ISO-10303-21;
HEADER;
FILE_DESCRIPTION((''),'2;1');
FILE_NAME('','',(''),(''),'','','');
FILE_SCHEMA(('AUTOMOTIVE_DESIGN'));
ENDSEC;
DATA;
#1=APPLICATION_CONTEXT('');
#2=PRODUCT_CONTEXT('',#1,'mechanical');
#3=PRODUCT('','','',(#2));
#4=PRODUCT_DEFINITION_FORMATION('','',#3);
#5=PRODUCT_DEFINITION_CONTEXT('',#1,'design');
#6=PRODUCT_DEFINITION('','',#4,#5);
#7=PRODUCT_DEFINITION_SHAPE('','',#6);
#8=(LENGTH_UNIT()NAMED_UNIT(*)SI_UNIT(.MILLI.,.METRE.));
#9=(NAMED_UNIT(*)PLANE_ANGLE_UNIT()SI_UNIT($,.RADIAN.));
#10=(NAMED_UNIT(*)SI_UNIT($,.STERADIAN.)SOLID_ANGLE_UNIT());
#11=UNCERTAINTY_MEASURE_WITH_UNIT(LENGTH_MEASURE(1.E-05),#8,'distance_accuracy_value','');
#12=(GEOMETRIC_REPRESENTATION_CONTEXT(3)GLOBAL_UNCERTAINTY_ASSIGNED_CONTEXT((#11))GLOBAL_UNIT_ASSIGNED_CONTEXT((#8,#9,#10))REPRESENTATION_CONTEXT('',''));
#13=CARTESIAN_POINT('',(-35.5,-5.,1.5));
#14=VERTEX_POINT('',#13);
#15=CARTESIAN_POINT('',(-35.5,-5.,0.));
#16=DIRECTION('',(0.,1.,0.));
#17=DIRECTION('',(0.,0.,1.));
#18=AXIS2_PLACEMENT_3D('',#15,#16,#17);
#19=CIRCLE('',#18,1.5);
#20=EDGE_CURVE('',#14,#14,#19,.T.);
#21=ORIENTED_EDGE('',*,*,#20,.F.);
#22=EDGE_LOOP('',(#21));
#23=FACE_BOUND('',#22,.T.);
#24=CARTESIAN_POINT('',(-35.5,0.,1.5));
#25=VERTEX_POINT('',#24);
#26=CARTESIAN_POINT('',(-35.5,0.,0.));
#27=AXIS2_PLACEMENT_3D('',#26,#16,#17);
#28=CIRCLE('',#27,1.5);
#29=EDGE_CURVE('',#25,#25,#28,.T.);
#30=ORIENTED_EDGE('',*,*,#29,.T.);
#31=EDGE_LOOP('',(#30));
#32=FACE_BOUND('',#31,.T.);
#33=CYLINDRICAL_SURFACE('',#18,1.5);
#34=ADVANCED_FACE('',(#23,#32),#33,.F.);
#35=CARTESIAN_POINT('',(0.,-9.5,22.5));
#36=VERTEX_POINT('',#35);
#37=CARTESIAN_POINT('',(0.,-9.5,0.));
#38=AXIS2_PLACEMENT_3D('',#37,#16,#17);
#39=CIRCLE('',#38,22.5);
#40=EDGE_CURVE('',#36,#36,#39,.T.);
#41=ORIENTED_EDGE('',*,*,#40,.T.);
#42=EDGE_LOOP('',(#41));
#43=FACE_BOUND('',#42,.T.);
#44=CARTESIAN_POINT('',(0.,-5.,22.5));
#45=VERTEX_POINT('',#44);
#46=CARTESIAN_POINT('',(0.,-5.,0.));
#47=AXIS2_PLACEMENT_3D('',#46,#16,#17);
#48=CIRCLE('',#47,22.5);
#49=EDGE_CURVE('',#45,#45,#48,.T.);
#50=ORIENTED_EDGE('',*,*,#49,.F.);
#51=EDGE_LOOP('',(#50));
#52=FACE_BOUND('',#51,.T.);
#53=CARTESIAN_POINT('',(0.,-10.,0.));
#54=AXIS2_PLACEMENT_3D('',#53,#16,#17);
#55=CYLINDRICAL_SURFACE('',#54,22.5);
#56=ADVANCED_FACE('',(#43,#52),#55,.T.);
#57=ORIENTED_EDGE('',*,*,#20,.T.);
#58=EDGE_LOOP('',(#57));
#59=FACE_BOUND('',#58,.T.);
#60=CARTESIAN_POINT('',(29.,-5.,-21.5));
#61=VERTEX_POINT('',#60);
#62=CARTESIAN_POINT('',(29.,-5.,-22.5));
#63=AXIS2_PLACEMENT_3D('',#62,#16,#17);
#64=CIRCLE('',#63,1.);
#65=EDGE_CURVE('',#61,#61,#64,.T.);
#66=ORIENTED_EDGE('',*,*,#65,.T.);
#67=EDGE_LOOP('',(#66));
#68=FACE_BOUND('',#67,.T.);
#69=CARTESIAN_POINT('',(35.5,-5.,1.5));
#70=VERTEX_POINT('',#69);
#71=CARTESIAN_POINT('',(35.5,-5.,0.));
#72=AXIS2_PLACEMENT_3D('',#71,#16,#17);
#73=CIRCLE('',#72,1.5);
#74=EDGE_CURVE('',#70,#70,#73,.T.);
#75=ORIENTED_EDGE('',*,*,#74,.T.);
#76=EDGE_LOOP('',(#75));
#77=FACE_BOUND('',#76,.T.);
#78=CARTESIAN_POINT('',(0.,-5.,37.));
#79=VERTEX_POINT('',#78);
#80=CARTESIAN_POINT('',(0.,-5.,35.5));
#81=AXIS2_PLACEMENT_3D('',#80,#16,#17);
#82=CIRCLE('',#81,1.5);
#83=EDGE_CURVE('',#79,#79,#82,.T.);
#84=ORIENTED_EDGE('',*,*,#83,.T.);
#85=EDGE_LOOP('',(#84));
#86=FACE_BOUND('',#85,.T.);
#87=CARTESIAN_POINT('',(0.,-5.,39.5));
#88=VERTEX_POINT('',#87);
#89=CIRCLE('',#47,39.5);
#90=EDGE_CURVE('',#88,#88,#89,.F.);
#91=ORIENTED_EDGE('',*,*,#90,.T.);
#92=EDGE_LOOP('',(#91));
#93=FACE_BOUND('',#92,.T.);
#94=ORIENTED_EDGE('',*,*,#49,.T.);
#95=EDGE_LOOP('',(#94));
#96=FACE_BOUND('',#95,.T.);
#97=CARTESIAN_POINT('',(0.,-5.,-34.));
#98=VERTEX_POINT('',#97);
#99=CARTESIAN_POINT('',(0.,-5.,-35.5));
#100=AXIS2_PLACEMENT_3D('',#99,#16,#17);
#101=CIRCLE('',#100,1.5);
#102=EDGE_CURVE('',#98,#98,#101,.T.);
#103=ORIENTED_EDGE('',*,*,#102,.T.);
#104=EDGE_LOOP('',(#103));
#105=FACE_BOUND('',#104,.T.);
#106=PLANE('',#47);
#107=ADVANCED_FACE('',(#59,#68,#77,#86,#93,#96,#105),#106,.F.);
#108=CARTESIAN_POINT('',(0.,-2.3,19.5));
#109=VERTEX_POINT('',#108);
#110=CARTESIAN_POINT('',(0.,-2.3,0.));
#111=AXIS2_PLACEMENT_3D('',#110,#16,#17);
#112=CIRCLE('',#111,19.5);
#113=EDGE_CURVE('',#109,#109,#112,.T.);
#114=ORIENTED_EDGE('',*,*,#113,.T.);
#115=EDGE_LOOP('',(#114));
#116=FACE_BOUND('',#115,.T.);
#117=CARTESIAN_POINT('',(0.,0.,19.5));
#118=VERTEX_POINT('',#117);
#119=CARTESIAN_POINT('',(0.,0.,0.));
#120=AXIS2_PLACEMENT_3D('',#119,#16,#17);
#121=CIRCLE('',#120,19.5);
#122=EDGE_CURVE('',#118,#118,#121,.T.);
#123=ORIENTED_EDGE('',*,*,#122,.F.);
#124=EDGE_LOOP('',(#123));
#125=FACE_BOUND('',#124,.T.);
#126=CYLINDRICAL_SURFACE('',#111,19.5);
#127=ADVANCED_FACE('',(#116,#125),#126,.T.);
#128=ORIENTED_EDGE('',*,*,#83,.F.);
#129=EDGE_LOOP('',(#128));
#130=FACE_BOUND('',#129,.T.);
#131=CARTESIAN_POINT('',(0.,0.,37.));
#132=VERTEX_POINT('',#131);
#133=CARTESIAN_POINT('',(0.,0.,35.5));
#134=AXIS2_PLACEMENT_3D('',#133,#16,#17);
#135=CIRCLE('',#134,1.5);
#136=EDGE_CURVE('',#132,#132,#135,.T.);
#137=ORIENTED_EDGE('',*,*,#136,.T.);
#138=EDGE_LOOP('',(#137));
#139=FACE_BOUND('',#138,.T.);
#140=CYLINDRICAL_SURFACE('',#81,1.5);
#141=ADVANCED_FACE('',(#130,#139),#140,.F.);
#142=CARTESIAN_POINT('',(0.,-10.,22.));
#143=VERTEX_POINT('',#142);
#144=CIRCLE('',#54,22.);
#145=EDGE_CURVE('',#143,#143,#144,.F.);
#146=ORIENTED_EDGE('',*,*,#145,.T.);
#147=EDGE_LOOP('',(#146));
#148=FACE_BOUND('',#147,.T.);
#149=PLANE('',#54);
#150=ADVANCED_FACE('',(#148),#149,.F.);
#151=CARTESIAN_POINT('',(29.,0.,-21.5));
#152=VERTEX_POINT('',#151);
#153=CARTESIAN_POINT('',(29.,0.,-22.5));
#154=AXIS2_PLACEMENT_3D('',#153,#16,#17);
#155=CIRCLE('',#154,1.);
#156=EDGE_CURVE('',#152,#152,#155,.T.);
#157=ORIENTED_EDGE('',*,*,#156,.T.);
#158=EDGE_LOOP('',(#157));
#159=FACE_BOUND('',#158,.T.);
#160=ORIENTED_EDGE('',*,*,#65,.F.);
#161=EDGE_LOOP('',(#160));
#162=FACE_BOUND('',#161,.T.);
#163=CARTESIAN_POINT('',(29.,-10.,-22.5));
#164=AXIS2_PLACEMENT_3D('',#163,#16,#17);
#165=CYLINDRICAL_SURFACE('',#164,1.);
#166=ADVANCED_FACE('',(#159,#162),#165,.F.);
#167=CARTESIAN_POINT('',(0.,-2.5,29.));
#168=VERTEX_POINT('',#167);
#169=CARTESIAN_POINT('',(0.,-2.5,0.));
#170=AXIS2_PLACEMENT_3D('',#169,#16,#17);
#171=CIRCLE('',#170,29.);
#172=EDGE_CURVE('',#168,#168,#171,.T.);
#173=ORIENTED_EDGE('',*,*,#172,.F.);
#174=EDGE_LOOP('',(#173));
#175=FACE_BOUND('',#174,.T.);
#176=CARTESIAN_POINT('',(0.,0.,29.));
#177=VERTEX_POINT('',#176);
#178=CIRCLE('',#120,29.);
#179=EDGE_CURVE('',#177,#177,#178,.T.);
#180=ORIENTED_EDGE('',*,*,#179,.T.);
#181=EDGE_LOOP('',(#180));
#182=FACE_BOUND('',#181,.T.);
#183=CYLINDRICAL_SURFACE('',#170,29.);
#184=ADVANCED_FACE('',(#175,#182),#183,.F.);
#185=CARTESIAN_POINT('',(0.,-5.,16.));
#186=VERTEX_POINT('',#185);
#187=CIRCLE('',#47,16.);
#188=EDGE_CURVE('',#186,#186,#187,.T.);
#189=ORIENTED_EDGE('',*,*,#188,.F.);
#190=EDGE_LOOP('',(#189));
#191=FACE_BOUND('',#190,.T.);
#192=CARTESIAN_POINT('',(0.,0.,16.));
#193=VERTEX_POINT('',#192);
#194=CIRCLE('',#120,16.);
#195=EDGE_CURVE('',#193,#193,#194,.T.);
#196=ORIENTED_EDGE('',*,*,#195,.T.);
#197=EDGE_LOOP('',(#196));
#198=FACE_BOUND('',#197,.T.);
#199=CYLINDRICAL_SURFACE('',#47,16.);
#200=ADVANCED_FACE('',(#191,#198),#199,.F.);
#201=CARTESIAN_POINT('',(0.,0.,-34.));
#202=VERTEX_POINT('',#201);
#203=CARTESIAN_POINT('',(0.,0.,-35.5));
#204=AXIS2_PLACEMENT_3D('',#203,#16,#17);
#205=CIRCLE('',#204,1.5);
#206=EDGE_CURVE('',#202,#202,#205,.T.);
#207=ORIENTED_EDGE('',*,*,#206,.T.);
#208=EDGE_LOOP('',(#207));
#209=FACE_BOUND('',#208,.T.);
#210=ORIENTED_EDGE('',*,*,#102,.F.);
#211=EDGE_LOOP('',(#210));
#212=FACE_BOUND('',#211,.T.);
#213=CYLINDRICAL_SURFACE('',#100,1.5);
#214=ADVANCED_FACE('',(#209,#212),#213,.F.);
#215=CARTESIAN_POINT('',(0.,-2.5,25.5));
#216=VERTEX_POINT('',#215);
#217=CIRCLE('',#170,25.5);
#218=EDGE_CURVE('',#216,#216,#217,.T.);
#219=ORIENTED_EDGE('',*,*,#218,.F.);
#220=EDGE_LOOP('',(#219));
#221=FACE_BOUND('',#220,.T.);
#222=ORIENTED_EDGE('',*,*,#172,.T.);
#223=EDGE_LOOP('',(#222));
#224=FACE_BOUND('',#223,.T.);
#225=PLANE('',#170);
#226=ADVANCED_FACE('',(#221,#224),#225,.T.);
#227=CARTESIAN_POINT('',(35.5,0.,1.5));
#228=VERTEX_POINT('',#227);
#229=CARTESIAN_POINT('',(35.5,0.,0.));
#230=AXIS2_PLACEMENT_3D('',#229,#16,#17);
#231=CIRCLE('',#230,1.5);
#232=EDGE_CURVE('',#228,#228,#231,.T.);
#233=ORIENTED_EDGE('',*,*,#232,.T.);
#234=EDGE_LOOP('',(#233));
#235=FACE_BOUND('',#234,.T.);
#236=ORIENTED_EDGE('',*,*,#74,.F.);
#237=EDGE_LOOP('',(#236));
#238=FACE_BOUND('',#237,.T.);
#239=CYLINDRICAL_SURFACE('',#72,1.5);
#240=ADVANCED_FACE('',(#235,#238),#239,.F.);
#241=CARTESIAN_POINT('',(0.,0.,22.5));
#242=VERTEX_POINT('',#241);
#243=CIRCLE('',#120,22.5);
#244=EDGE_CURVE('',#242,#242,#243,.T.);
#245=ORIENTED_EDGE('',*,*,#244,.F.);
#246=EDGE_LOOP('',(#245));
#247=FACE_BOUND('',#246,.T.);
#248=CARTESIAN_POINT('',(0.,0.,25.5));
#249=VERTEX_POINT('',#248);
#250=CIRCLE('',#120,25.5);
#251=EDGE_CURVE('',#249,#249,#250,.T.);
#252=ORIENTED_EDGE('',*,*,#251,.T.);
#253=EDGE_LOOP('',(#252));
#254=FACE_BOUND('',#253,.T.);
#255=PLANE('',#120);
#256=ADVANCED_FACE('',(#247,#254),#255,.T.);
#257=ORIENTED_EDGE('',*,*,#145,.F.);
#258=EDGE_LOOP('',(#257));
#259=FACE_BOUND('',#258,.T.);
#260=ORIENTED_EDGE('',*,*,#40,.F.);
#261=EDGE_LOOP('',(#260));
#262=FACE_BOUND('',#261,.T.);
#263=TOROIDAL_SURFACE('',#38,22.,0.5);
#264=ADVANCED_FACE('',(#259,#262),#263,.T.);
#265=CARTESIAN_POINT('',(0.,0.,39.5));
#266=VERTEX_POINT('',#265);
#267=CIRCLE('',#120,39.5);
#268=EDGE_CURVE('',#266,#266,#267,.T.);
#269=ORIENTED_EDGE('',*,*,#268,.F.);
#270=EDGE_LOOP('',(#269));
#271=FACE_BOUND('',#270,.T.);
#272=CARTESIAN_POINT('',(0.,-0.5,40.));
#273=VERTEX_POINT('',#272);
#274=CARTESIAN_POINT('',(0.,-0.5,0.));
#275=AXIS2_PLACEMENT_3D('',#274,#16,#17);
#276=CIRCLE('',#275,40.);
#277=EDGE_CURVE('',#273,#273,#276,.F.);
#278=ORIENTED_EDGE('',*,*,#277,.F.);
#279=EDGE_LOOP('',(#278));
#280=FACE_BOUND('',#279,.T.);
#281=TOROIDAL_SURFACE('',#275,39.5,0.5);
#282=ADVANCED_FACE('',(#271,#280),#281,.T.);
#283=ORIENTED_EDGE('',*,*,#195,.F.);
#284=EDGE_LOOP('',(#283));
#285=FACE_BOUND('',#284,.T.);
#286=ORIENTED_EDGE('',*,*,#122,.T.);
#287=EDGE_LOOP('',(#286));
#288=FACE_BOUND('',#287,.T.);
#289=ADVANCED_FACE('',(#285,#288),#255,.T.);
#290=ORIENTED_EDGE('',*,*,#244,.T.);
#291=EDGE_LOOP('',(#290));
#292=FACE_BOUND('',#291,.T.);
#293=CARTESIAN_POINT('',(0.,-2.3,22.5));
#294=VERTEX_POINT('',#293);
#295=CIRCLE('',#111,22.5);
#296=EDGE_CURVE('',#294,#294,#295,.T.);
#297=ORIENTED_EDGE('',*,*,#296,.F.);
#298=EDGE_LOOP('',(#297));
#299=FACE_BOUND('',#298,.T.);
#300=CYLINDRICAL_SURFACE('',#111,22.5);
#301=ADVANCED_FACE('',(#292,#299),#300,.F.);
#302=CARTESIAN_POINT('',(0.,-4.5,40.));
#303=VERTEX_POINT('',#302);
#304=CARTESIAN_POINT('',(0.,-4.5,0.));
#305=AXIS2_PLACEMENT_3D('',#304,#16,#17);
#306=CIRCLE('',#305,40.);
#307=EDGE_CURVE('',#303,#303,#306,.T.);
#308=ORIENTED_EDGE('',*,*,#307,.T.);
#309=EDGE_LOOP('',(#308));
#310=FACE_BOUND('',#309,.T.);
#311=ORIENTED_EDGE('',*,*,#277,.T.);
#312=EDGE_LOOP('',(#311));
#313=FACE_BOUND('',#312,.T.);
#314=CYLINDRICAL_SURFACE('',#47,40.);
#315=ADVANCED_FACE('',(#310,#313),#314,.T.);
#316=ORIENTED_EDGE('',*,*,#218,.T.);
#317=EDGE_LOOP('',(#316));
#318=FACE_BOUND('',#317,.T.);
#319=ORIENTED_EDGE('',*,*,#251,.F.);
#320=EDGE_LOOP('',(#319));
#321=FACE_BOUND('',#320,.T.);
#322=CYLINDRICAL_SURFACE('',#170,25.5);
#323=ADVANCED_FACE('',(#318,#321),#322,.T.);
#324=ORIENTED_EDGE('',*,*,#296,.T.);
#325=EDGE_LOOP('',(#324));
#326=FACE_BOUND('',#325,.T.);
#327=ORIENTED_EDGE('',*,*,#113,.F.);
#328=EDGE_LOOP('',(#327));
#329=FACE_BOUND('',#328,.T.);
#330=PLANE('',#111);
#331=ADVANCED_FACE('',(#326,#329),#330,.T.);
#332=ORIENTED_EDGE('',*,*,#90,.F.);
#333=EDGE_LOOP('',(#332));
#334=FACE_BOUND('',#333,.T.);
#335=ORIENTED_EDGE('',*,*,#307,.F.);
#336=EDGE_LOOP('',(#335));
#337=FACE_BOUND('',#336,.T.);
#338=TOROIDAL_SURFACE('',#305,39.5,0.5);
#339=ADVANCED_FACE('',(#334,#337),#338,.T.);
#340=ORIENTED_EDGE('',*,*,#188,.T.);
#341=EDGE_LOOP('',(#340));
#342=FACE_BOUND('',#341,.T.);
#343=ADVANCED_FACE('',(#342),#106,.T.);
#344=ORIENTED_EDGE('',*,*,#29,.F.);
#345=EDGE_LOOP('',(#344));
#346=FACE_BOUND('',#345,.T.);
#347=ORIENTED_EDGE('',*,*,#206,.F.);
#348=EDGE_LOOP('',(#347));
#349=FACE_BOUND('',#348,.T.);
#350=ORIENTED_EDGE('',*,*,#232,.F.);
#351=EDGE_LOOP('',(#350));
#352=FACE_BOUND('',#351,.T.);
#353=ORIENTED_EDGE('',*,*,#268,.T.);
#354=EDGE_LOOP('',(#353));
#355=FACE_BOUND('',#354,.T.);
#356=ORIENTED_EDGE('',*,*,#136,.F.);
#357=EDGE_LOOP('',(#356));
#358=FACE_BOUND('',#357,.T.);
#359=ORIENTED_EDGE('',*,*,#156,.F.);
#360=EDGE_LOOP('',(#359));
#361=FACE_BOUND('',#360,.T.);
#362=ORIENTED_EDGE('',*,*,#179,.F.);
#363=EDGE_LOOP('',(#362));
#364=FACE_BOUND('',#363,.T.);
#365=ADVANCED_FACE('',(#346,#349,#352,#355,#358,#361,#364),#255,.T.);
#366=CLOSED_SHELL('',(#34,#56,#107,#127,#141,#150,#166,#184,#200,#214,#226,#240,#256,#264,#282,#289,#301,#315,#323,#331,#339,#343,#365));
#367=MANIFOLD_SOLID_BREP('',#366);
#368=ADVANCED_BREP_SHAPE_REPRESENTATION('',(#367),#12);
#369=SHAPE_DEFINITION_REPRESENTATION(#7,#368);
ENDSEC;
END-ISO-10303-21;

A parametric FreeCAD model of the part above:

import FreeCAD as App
import Part
import Sketcher
from FreeCAD import Vector


def edges_at(feature, points):
    """Names of the edges that pass closest to the given points."""
    edges = feature.Shape.Edges
    near = lambda p: min(range(len(edges)), key=lambda i: edges[i].distToShape(Part.Vertex(*p))[0])
    return sorted({f"Edge{near(p) + 1}" for p in points})

doc = App.newDocument("Part")
body = doc.addObject("PartDesign::Body", "Body")

# Sketch on XZ plane
sketch1 = body.newObject("Sketcher::SketchObject", "Sketch")
sketch1.AttachmentSupport = (doc.getObject("XZ_Plane"), [""])
sketch1.MapMode = "FlatFace"
sketch1.addGeometry(Part.Circle(Vector(0, 0, 0), Vector(0, 0, 1), 40), False)
sketch1.addConstraint([
    Sketcher.Constraint("Coincident", 0, 3, -1, 1),
    Sketcher.Constraint("Diameter", 0, 80.0),
])
pad1 = body.newObject("PartDesign::Pad", "Pad")
pad1.Profile = sketch1
pad1.Length = 5

# Sketch on XZ plane
sketch2 = body.newObject("Sketcher::SketchObject", "Sketch001")
sketch2.AttachmentSupport = (doc.getObject("XZ_Plane"), [""])
sketch2.MapMode = "FlatFace"
sketch2.addGeometry([
    Part.Circle(Vector(35.5, 0, 0), Vector(0, 0, 1), 1.5),
    Part.Circle(Vector(0, 35.5, 0), Vector(0, 0, 1), 1.5),
    Part.Circle(Vector(-35.5, 0, 0), Vector(0, 0, 1), 1.5),
    Part.Circle(Vector(0, -35.5, 0), Vector(0, 0, 1), 1.5),
], False)
sketch2.addConstraint([
    Sketcher.Constraint("Equal", 0, 1),
    Sketcher.Constraint("Equal", 1, 2),
    Sketcher.Constraint("Equal", 2, 3),
    Sketcher.Constraint("Symmetric", 0, 3, 2, 3, -1, 1),
    Sketcher.Constraint("Symmetric", 1, 3, 3, 3, -1, 1),
    Sketcher.Constraint("PointOnObject", 0, 3, -1),
    Sketcher.Constraint("PointOnObject", 1, 3, -2),
    Sketcher.Constraint("Diameter", 0, 3.0),
    Sketcher.Constraint("DistanceX", 2, 3, 0, 3, 71.0),
    Sketcher.Constraint("DistanceY", 3, 3, 1, 3, 71.0),
])
pocket1 = body.newObject("PartDesign::Pocket", "Pocket")
pocket1.Profile = sketch2
pocket1.Type = "ThroughAll"
pocket1.Reversed = True

# Sketch on XZ plane
sketch3 = body.newObject("Sketcher::SketchObject", "Sketch002")
sketch3.AttachmentSupport = (doc.getObject("XZ_Plane"), [""])
sketch3.MapMode = "FlatFace"
sketch3.addGeometry(Part.Circle(Vector(0, 0, 0), Vector(0, 0, 1), 22.5), False)
sketch3.addConstraint([
    Sketcher.Constraint("Coincident", 0, 3, -1, 1),
    Sketcher.Constraint("Diameter", 0, 45.0),
])
pad2 = body.newObject("PartDesign::Pad", "Pad001")
pad2.Profile = sketch3
pad2.Length = 10

# Sketch on XZ plane
sketch4 = body.newObject("Sketcher::SketchObject", "Sketch003")
sketch4.AttachmentSupport = (doc.getObject("XZ_Plane"), [""])
sketch4.MapMode = "FlatFace"
sketch4.addGeometry([
    Part.Circle(Vector(0, 0, 0), Vector(0, 0, 1), 22.5),
    Part.Circle(Vector(0, 0, 0), Vector(0, 0, 1), 19.5),
], False)
sketch4.addConstraint([
    Sketcher.Constraint("Coincident", 0, 3, -1, 1),
    Sketcher.Constraint("Coincident", 1, 3, -1, 1),
    Sketcher.Constraint("Diameter", 0, 45.0),
    Sketcher.Constraint("Diameter", 1, 39.0),
])
pocket2 = body.newObject("PartDesign::Pocket", "Pocket001")
pocket2.Profile = sketch4
pocket2.Length = 2.3
pocket2.Reversed = True

# Sketch on XZ plane
sketch5 = body.newObject("Sketcher::SketchObject", "Sketch004")
sketch5.AttachmentSupport = (doc.getObject("XZ_Plane"), [""])
sketch5.MapMode = "FlatFace"
sketch5.addGeometry([
    Part.Circle(Vector(0, 0, 0), Vector(0, 0, 1), 29),
    Part.Circle(Vector(0, 0, 0), Vector(0, 0, 1), 25.5),
], False)
sketch5.addConstraint([
    Sketcher.Constraint("Coincident", 0, 3, -1, 1),
    Sketcher.Constraint("Coincident", 1, 3, -1, 1),
    Sketcher.Constraint("Diameter", 0, 58.0),
    Sketcher.Constraint("Diameter", 1, 51.0),
])
pocket3 = body.newObject("PartDesign::Pocket", "Pocket002")
pocket3.Profile = sketch5
pocket3.Length = 2.5
pocket3.Reversed = True

# Sketch on XZ plane
sketch6 = body.newObject("Sketcher::SketchObject", "Sketch005")
sketch6.AttachmentSupport = (doc.getObject("XZ_Plane"), [""])
sketch6.MapMode = "FlatFace"
sketch6.addGeometry(Part.Circle(Vector(29, -22.5, 0), Vector(0, 0, 1), 1), False)
sketch6.addConstraint([
    Sketcher.Constraint("Diameter", 0, 2.0),
    Sketcher.Constraint("DistanceX", -1, 1, 0, 3, 29.0),
    Sketcher.Constraint("DistanceY", 0, 3, -1, 1, 22.5),
])
pocket4 = body.newObject("PartDesign::Pocket", "Pocket003")
pocket4.Profile = sketch6
pocket4.Type = "ThroughAll"
pocket4.Reversed = True

# Sketch on XZ plane
sketch7 = body.newObject("Sketcher::SketchObject", "Sketch006")
sketch7.AttachmentSupport = (doc.getObject("XZ_Plane"), [""])
sketch7.MapMode = "FlatFace"
sketch7.addGeometry(Part.Circle(Vector(0, 0, 0), Vector(0, 0, 1), 16), False)
sketch7.addConstraint([
    Sketcher.Constraint("Coincident", 0, 3, -1, 1),
    Sketcher.Constraint("Diameter", 0, 32.0),
])
pocket5 = body.newObject("PartDesign::Pocket", "Pocket004")
pocket5.Profile = sketch7
pocket5.Length = 5
pocket5.Reversed = True
doc.recompute()

fillet = body.newObject("PartDesign::Fillet", "Fillet")
fillet.Base = (pocket5, edges_at(pocket5, [(0, -5, -40)]))
fillet.Radius = 0.5
doc.recompute()

fillet2 = body.newObject("PartDesign::Fillet", "Fillet001")
fillet2.Base = (fillet, edges_at(fillet, [(0, 0, -40)]))
fillet2.Radius = 0.5
doc.recompute()

fillet3 = body.newObject("PartDesign::Fillet", "Fillet002")
fillet3.Base = (fillet2, edges_at(fillet2, [(0, -10, -22.5)]))
fillet3.Radius = 0.5

doc.recompute()
